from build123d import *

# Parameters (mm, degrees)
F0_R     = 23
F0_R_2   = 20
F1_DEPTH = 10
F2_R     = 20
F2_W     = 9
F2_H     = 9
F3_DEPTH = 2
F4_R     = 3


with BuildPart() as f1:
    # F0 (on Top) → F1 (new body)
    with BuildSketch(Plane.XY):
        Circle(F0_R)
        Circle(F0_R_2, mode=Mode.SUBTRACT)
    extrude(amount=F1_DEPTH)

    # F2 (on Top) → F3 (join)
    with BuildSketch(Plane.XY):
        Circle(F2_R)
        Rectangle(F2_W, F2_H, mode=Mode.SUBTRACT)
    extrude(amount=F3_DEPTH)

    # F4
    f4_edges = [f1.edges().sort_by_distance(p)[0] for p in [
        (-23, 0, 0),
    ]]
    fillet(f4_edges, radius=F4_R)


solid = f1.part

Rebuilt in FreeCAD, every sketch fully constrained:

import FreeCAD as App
import Part
import Sketcher

V = App.Vector


def edges_at(feature, points):
    """Names of the edges that pass closest to the given points."""
    edges = feature.Shape.Edges
    near = lambda p: min(range(len(edges)), key=lambda i: edges[i].distToShape(Part.Vertex(*p))[0])
    return sorted({f"Edge{near(p) + 1}" for p in points})


def add_polygon(sketch, points):
    """Adds a closed chain of lines whose ends are joined by coincident constraints."""
    first, n = sketch.GeometryCount, len(points)
    for a, b in zip(points, points[1:] + points[:1]):
        sketch.addGeometry(Part.LineSegment(App.Vector(*a, 0), App.Vector(*b, 0)), False)
    for i in range(n):
        sketch.addConstraint(Sketcher.Constraint("Coincident", first + i, 2, first + (i + 1) % n, 1))

doc = App.newDocument("Part")
params = doc.addObject("Spreadsheet::Sheet", "Params")
for row, (alias, value) in enumerate([
    ("sketch1_diameter", "46 mm"),
    ("sketch1_diameter2", "40 mm"),
    ("pad1_length", "10 mm"),
    ("sketch2_diameter", "40 mm"),
    ("sketch2_width", "9 mm"),
    ("pad2_length", "2 mm"),
    ("fillet_radius", "3 mm"),
], start=1):
    params.set(f"A{row}", alias)
    params.set(f"B{row}", "=" + value)
    params.setAlias(f"B{row}", alias)

body = doc.addObject("PartDesign::Body", "Body")

sketch1 = body.newObject("Sketcher::SketchObject", "Sketch")
sketch1.AttachmentSupport = (doc.getObject("XY_Plane"), [""])
sketch1.MapMode = "FlatFace"
sketch1.addGeometry(Part.Circle(V(0, 0, 0), V(0, 0, 1), 23), False)
sketch1.addGeometry(Part.Circle(V(0, 0, 0), V(0, 0, 1), 20), False)
sketch1.addConstraint(Sketcher.Constraint("Coincident", 0, 3, -1, 1))
sketch1.addConstraint(Sketcher.Constraint("Coincident", 1, 3, -1, 1))
sketch1.addConstraint(Sketcher.Constraint("Diameter", 0, 46.0))
sketch1.addConstraint(Sketcher.Constraint("Diameter", 1, 40.0))
sketch1.setExpression("Constraints[2]", "Params.sketch1_diameter")
sketch1.setExpression("Constraints[3]", "Params.sketch1_diameter2")
pad1 = body.newObject("PartDesign::Pad", "Pad")
pad1.Profile = sketch1
pad1.setExpression("Length", "Params.pad1_length")

sketch2 = body.newObject("Sketcher::SketchObject", "Sketch001")
sketch2.AttachmentSupport = (doc.getObject("XY_Plane"), [""])
sketch2.MapMode = "FlatFace"
sketch2.addGeometry(Part.Circle(V(0, 0, 0), V(0, 0, 1), 20), False)
add_polygon(sketch2, [(4.5, -4.5), (-4.5, -4.5), (-4.5, 4.5), (4.5, 4.5)])
sketch2.addConstraint(Sketcher.Constraint("Horizontal", 1))
sketch2.addConstraint(Sketcher.Constraint("Vertical", 2))
sketch2.addConstraint(Sketcher.Constraint("Horizontal", 3))
sketch2.addConstraint(Sketcher.Constraint("Vertical", 4))
sketch2.addConstraint(Sketcher.Constraint("Coincident", 0, 3, -1, 1))
sketch2.addConstraint(Sketcher.Constraint("Symmetric", 1, 2, 3, 2, -1, 1))
sketch2.addConstraint(Sketcher.Constraint("Equal", 3, 2))
sketch2.addConstraint(Sketcher.Constraint("Diameter", 0, 40.0))
sketch2.addConstraint(Sketcher.Constraint("DistanceX", 1, 2, 1, 1, 9.0))
sketch2.setExpression("Constraints[11]", "Params.sketch2_diameter")
sketch2.setExpression("Constraints[12]", "Params.sketch2_width")
pad2 = body.newObject("PartDesign::Pad", "Pad001")
pad2.Profile = sketch2
pad2.setExpression("Length", "Params.pad2_length")
doc.recompute()

fillet = body.newObject("PartDesign::Fillet", "Fillet")
fillet.Base = (pad2, edges_at(pad2, [(-23, 0, 0)]))
fillet.setExpression("Radius", "Params.fillet_radius")

doc.recompute()
